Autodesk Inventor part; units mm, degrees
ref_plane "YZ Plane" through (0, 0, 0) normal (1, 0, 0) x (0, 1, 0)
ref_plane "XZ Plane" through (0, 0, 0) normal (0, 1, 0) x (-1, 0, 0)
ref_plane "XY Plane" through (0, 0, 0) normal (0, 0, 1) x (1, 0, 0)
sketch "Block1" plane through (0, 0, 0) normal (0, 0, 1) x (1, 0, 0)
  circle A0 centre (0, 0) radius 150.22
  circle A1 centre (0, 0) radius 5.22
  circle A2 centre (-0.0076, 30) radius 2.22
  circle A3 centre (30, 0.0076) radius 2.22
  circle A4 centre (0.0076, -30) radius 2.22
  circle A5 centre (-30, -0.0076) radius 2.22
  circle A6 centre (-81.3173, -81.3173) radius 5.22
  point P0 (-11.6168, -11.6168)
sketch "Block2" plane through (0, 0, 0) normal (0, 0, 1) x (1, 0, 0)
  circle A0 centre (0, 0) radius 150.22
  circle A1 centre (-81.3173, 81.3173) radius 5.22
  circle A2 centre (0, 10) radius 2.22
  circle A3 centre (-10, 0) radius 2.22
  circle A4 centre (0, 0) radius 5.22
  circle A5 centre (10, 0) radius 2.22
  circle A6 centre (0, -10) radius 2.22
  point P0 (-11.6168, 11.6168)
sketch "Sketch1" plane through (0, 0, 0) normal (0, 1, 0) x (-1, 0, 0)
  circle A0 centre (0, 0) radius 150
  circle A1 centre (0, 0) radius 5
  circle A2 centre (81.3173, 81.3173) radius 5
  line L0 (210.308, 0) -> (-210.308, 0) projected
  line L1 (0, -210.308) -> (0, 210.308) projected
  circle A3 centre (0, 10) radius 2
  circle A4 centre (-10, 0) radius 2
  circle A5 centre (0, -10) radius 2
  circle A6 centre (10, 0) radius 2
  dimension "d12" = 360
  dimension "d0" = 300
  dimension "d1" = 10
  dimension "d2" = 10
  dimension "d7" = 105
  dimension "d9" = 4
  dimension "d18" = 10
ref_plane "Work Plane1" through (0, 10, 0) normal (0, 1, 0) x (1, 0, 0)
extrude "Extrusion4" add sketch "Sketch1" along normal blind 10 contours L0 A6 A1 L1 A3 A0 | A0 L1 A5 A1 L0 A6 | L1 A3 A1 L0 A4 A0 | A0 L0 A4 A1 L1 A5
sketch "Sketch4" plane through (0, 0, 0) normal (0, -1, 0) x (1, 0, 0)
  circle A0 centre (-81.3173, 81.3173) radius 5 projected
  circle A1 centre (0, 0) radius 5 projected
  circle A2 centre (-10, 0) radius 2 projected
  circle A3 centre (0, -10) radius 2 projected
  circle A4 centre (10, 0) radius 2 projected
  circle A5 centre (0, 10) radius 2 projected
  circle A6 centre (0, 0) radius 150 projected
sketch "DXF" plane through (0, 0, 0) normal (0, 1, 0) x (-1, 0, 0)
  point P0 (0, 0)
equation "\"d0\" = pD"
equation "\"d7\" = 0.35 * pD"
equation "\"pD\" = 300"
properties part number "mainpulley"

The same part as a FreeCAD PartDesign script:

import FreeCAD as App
import Part
import Sketcher

V = App.Vector
Q = App.Units.Quantity

doc = App.newDocument("Part")
body = doc.addObject("PartDesign::Body", "Body")

sketch1 = body.newObject("Sketcher::SketchObject", "Sketch")
sketch1.AttachmentSupport = (doc.getObject("XZ_Plane"), [""])
sketch1.MapMode = "FlatFace"
sketch1.addGeometry(Part.Circle(V(0, 0, 0), V(0, 0, 1), 150), False)
sketch1.addGeometry(Part.Circle(V(-10, 0, 0), V(0, 0, 1), 2), False)
sketch1.addGeometry(Part.Circle(V(0, 0, 0), V(0, 0, 1), 5), False)
sketch1.addGeometry(Part.Circle(V(0, 10, 0), V(0, 0, 1), 2), False)
sketch1.addGeometry(Part.Circle(V(-81.3173, 81.3173, 0), V(0, 0, 1), 5), False)
sketch1.addGeometry(Part.Circle(V(0, -10, 0), V(0, 0, 1), 2), False)
sketch1.addGeometry(Part.Circle(V(10, 0, 0), V(0, 0, 1), 2), False)
sketch1.addConstraint(Sketcher.Constraint("Coincident", 0, 3, -1, 1))
sketch1.addConstraint(Sketcher.Constraint("Coincident", 2, 3, -1, 1))
sketch1.addConstraint(Sketcher.Constraint("Equal", 1, 3))
sketch1.addConstraint(Sketcher.Constraint("Equal", 2, 4))
sketch1.addConstraint(Sketcher.Constraint("Equal", 3, 5))
sketch1.addConstraint(Sketcher.Constraint("Equal", 5, 6))
sketch1.addConstraint(Sketcher.Constraint("Symmetric", 3, 3, 5, 3, -1, 1))
sketch1.addConstraint(Sketcher.Constraint("Symmetric", 1, 3, 6, 3, -1, 1))
sketch1.addConstraint(Sketcher.Constraint("PointOnObject", 1, 3, -1))
sketch1.addConstraint(Sketcher.Constraint("PointOnObject", 3, 3, -2))
sketch1.addConstraint(Sketcher.Constraint("Diameter", 0, Q("300 mm")))
sketch1.addConstraint(Sketcher.Constraint("Diameter", 1, Q("4 mm")))
sketch1.addConstraint(Sketcher.Constraint("Diameter", 2, Q("10 mm")))
sketch1.addConstraint(Sketcher.Constraint("DistanceX", 1, 3, -1, 1, Q("10 mm")))
sketch1.addConstraint(Sketcher.Constraint("DistanceY", -1, 1, 3, 3, Q("10 mm")))
sketch1.addConstraint(Sketcher.Constraint("DistanceX", 4, 3, -1, 1, Q("81.3173 mm")))
sketch1.addConstraint(Sketcher.Constraint("DistanceY", -1, 1, 4, 3, Q("81.3173 mm")))
pad1 = body.newObject("PartDesign::Pad", "Pad")
pad1.Profile = sketch1
pad1.Length = 10
pad1.Reversed = True

doc.recompute()
